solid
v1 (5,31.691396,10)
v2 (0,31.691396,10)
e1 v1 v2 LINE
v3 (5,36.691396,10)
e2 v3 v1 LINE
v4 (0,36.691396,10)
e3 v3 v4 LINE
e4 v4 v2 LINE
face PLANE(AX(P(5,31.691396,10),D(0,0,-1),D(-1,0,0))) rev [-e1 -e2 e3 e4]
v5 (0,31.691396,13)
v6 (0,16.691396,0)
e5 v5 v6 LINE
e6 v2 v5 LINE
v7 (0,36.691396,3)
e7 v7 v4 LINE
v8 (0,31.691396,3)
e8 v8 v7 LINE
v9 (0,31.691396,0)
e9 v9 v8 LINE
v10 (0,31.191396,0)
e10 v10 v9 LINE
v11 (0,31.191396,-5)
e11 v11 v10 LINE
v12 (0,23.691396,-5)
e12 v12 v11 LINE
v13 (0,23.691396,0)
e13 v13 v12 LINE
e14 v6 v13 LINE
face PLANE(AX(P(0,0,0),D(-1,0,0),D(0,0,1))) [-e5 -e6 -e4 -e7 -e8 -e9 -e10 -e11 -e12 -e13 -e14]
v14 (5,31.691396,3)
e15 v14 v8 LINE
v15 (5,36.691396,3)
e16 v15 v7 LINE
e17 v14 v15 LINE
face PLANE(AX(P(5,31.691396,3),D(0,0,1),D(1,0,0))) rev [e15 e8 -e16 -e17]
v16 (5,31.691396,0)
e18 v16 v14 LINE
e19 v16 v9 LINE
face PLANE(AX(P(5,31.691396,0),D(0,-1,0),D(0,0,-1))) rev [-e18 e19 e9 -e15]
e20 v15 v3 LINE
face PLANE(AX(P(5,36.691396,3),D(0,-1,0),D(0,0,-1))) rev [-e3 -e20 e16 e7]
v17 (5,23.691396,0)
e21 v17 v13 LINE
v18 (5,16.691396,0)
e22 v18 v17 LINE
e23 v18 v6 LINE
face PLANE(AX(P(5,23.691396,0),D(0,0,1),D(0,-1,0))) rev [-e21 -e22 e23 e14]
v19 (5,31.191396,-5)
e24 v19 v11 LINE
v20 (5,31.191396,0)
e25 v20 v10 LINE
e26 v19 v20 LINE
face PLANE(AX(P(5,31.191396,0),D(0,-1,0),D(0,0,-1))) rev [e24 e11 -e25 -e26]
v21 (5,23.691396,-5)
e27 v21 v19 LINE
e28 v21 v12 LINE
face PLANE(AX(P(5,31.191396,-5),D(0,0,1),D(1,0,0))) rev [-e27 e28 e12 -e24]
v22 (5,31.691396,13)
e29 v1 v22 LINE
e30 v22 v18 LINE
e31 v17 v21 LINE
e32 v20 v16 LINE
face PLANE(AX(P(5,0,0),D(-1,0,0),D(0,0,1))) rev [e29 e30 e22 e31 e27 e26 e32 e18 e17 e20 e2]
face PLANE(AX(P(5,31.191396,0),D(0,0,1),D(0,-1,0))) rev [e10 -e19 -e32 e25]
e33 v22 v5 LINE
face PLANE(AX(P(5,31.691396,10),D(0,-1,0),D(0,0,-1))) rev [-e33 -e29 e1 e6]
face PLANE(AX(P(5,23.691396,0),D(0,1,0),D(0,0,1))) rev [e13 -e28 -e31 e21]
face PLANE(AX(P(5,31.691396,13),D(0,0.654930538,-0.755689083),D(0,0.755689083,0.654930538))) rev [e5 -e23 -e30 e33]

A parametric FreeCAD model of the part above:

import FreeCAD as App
import Part
import Sketcher
Q = App.Units.Quantity


def add_polygon(sketch, points):
    """Adds a closed chain of lines whose ends are joined by coincident constraints."""
    first, n = sketch.GeometryCount, len(points)
    for a, b in zip(points, points[1:] + points[:1]):
        sketch.addGeometry(Part.LineSegment(App.Vector(*a, 0), App.Vector(*b, 0)), False)
    for i in range(n):
        sketch.addConstraint(Sketcher.Constraint("Coincident", first + i, 2, first + (i + 1) % n, 1))

doc = App.newDocument("Part")
body = doc.addObject("PartDesign::Body", "Body")

# Sketch on YZ plane
sketch1 = body.newObject("Sketcher::SketchObject", "Sketch")
sketch1.AttachmentSupport = (doc.getObject("YZ_Plane"), [""])
sketch1.MapMode = "FlatFace"
add_polygon(sketch1, [(31.691396, 0), (31.691396, 3), (36.691396, 3), (36.691396, 10), (31.691396, 10), (31.691396, 13), (16.691396, 0), (23.691396, 0), (23.691396, -5), (31.191396, -5), (31.191396, 0)])  # lines 0-10
sketch1.addConstraint([
    Sketcher.Constraint("Vertical", 0),
    Sketcher.Constraint("Horizontal", 1),
    Sketcher.Constraint("Vertical", 2),
    Sketcher.Constraint("Horizontal", 3),
    Sketcher.Constraint("Vertical", 4),
    Sketcher.Constraint("Horizontal", 6),
    Sketcher.Constraint("Vertical", 7),
    Sketcher.Constraint("Horizontal", 8),
    Sketcher.Constraint("Vertical", 9),
    Sketcher.Constraint("Horizontal", 10),
    Sketcher.Constraint("PointOnObject", 5, 2, -1),
    Sketcher.Constraint("PointOnObject", 9, 2, -1),
    Sketcher.Constraint("Vertical", 0, 2, 3, 2),
    Sketcher.Constraint("Equal", 6, 2),
    Sketcher.Constraint("Equal", 0, 4),
    Sketcher.Constraint("Equal", 3, 7),
    Sketcher.Constraint("DistanceX", 1, 1, 1, 2, Q("5 mm")),
    Sketcher.Constraint("DistanceX", 6, 1, 6, 2, Q("7 mm")),
    Sketcher.Constraint("DistanceY", 0, 1, 0, 2, Q("3 mm")),
    Sketcher.Constraint("DistanceX", 8, 1, 8, 2, Q("7.5 mm")),
    Sketcher.Constraint("DistanceX", 10, 1, 10, 2, Q("0.5 mm")),
    Sketcher.Constraint("DistanceX", -1, 1, 0, 2, Q("31.691396 mm")),
])
pad1 = body.newObject("PartDesign::Pad", "Pad")
pad1.Profile = sketch1
pad1.Length = 5

doc.recompute()
